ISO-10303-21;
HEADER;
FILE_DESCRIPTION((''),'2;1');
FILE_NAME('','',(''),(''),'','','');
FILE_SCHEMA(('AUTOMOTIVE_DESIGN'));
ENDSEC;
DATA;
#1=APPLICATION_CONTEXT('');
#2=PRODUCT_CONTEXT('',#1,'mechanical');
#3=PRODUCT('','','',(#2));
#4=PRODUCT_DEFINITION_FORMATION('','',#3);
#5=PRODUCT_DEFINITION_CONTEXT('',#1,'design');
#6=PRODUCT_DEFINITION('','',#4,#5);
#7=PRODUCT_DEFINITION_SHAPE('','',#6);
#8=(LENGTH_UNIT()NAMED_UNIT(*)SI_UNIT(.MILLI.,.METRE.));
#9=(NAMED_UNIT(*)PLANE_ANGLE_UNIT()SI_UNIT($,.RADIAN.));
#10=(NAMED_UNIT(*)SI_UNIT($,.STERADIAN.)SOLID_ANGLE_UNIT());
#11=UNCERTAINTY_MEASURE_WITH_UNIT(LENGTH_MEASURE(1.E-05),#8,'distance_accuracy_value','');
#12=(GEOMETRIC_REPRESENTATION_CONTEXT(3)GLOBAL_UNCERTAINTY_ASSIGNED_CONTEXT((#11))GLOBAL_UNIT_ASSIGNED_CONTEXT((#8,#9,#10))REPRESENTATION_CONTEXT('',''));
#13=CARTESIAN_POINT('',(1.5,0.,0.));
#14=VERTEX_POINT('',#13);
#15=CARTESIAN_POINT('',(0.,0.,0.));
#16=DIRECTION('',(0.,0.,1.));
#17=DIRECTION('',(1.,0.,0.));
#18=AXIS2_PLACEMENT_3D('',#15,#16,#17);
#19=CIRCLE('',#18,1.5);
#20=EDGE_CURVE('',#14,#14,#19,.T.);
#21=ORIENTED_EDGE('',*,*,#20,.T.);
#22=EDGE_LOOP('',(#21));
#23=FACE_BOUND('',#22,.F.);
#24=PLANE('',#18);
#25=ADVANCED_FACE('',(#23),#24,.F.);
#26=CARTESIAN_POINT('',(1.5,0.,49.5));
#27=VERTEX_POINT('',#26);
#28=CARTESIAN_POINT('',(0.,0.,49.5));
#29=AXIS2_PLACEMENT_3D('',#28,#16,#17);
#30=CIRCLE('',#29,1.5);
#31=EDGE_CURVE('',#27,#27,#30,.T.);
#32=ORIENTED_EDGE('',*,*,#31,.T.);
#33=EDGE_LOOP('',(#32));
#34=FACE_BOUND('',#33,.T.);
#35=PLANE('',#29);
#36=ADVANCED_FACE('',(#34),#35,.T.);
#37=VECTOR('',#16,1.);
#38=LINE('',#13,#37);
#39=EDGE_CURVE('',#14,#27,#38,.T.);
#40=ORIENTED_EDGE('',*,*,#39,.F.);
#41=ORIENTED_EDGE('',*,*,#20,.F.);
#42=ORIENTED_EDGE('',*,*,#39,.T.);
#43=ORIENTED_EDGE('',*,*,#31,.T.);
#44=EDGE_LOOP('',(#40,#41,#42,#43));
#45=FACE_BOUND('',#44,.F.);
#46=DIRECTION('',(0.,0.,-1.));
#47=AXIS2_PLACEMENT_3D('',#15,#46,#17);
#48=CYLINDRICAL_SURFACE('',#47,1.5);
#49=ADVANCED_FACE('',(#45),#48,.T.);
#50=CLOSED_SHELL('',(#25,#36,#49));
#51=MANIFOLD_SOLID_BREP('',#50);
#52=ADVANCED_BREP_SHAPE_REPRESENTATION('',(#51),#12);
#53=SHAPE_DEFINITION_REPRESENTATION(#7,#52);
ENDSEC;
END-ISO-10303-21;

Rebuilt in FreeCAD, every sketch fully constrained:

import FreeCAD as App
import Part
import Sketcher
from FreeCAD import Vector
Q = App.Units.Quantity

doc = App.newDocument("Part")
body = doc.addObject("PartDesign::Body", "Body")

sketch1 = body.newObject("Sketcher::SketchObject", "Sketch")
sketch1.AttachmentSupport = (doc.getObject("XY_Plane"), [""])
sketch1.MapMode = "FlatFace"
sketch1.addGeometry(Part.Circle(Vector(0, 0, 0), Vector(0, 0, 1), 1.5), False)
sketch1.addConstraint([
    Sketcher.Constraint("Coincident", 0, 3, -1, 1),
    Sketcher.Constraint("Diameter", 0, Q("3 mm")),
])
pad1 = body.newObject("PartDesign::Pad", "Pad")
pad1.Profile = sketch1
pad1.Length = 49.5

doc.recompute()
